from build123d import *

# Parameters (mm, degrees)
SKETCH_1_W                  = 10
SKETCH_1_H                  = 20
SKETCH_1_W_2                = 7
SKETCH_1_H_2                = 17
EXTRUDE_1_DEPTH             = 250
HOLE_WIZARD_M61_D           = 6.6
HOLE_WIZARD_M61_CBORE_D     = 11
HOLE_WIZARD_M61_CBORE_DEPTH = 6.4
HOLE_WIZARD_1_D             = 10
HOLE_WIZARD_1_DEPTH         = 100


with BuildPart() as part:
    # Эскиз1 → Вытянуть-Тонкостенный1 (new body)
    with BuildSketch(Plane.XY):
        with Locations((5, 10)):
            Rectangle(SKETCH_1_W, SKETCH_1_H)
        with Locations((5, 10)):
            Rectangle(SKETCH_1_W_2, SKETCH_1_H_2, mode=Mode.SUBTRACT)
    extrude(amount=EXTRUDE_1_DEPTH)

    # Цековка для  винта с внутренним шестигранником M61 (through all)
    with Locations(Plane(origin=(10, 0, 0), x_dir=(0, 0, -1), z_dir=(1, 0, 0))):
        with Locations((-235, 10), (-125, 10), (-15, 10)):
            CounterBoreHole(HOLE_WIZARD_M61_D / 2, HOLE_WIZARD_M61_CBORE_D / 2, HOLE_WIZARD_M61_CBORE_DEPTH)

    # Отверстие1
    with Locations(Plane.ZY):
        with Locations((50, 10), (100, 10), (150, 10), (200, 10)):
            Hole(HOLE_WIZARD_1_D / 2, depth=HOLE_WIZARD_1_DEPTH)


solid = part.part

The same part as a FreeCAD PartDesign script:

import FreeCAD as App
import Part
import Sketcher
from FreeCAD import Vector
Q = App.Units.Quantity


def add_polygon(sketch, points):
    """Adds a closed chain of lines whose ends are joined by coincident constraints."""
    first, n = sketch.GeometryCount, len(points)
    for a, b in zip(points, points[1:] + points[:1]):
        sketch.addGeometry(Part.LineSegment(App.Vector(*a, 0), App.Vector(*b, 0)), False)
    for i in range(n):
        sketch.addConstraint(Sketcher.Constraint("Coincident", first + i, 2, first + (i + 1) % n, 1))

doc = App.newDocument("Part")
body = doc.addObject("PartDesign::Body", "Body")

sketch1 = body.newObject("Sketcher::SketchObject", "Sketch")
sketch1.AttachmentSupport = (doc.getObject("XY_Plane"), [""])
sketch1.MapMode = "FlatFace"
add_polygon(sketch1, [(0, 20), (0, 0), (10, 0), (10, 20)])
add_polygon(sketch1, [(8.5, 1.5), (1.5, 1.5), (1.5, 18.5), (8.5, 18.5)])
sketch1.addConstraint([
    Sketcher.Constraint("Vertical", 0),
    Sketcher.Constraint("Horizontal", 1),
    Sketcher.Constraint("Vertical", 2),
    Sketcher.Constraint("Horizontal", 3),
    Sketcher.Constraint("Horizontal", 4),
    Sketcher.Constraint("Vertical", 5),
    Sketcher.Constraint("Horizontal", 6),
    Sketcher.Constraint("Vertical", 7),
    Sketcher.Constraint("Coincident", 0, 2, -1, 1),
    Sketcher.Constraint("DistanceX", 1, 1, 1, 2, Q("10 mm")),
    Sketcher.Constraint("DistanceX", 4, 2, 4, 1, Q("7 mm")),
    Sketcher.Constraint("DistanceY", 0, 2, 0, 1, Q("20 mm")),
    Sketcher.Constraint("DistanceY", 5, 1, 5, 2, Q("17 mm")),
    Sketcher.Constraint("DistanceX", -1, 1, 4, 2, Q("1.5 mm")),
    Sketcher.Constraint("DistanceY", -1, 1, 4, 2, Q("1.5 mm")),
])
pad1 = body.newObject("PartDesign::Pad", "Pad")
pad1.Profile = sketch1
pad1.Length = 250

sketch2 = body.newObject("Sketcher::SketchObject", "Sketch001")
sketch2.AttachmentSupport = (doc.getObject("YZ_Plane"), [""])
sketch2.MapMode = "FlatFace"
sketch2.AttachmentOffset = App.Placement(Vector(0, 0, 10), App.Rotation())
sketch2.addGeometry([
    Part.Circle(Vector(10, 235, 0), Vector(0, 0, 1), 3.3),
    Part.Circle(Vector(10, 125, 0), Vector(0, 0, 1), 3.3),
    Part.Circle(Vector(10, 15, 0), Vector(0, 0, 1), 3.3),
], False)
sketch2.addConstraint([
    Sketcher.Constraint("Equal", 0, 1),
    Sketcher.Constraint("Equal", 1, 2),
    Sketcher.Constraint("Vertical", 0, 3, 1, 3),
    Sketcher.Constraint("Vertical", 1, 3, 2, 3),
    Sketcher.Constraint("Diameter", 0, Q("6.6 mm")),
    Sketcher.Constraint("DistanceX", -1, 1, 0, 3, Q("10 mm")),
    Sketcher.Constraint("DistanceY", -1, 1, 0, 3, Q("235 mm")),
    Sketcher.Constraint("DistanceY", -1, 1, 1, 3, Q("125 mm")),
    Sketcher.Constraint("DistanceY", -1, 1, 2, 3, Q("15 mm")),
])
doc.recompute()
hole = body.newObject("PartDesign::Hole", "Hole")
hole.Profile = sketch2
hole.ThreadType = "None"
hole.Diameter = 6.6
hole.DepthType = "ThroughAll"
hole.HoleCutType = "Counterbore"
hole.HoleCutDiameter = 11
hole.HoleCutDepth = 6.4

sketch3 = body.newObject("Sketcher::SketchObject", "Sketch002")
sketch3.AttachmentSupport = (doc.getObject("YZ_Plane"), [""])
sketch3.MapMode = "FlatFace"
sketch3.addGeometry([
    Part.Circle(Vector(10, 50, 0), Vector(0, 0, 1), 5),
    Part.Circle(Vector(10, 100, 0), Vector(0, 0, 1), 5),
    Part.Circle(Vector(10, 150, 0), Vector(0, 0, 1), 5),
    Part.Circle(Vector(10, 200, 0), Vector(0, 0, 1), 5),
], False)
sketch3.addConstraint([
    Sketcher.Constraint("Equal", 0, 1),
    Sketcher.Constraint("Equal", 1, 2),
    Sketcher.Constraint("Equal", 2, 3),
    Sketcher.Constraint("Vertical", 0, 3, 1, 3),
    Sketcher.Constraint("Vertical", 1, 3, 2, 3),
    Sketcher.Constraint("Vertical", 2, 3, 3, 3),
    Sketcher.Constraint("Diameter", 0, Q("10 mm")),
    Sketcher.Constraint("DistanceX", -1, 1, 0, 3, Q("10 mm")),
    Sketcher.Constraint("DistanceY", -1, 1, 0, 3, Q("50 mm")),
    Sketcher.Constraint("DistanceY", -1, 1, 1, 3, Q("100 mm")),
    Sketcher.Constraint("DistanceY", -1, 1, 2, 3, Q("150 mm")),
    Sketcher.Constraint("DistanceY", -1, 1, 3, 3, Q("200 mm")),
])
doc.recompute()
hole2 = body.newObject("PartDesign::Hole", "Hole001")
hole2.Profile = sketch3
hole2.ThreadType = "None"
hole2.Diameter = 10
hole2.DepthType = "Dimension"
hole2.Depth = 100
hole2.DrillPoint = "Flat"
hole2.Reversed = True

doc.recompute()
